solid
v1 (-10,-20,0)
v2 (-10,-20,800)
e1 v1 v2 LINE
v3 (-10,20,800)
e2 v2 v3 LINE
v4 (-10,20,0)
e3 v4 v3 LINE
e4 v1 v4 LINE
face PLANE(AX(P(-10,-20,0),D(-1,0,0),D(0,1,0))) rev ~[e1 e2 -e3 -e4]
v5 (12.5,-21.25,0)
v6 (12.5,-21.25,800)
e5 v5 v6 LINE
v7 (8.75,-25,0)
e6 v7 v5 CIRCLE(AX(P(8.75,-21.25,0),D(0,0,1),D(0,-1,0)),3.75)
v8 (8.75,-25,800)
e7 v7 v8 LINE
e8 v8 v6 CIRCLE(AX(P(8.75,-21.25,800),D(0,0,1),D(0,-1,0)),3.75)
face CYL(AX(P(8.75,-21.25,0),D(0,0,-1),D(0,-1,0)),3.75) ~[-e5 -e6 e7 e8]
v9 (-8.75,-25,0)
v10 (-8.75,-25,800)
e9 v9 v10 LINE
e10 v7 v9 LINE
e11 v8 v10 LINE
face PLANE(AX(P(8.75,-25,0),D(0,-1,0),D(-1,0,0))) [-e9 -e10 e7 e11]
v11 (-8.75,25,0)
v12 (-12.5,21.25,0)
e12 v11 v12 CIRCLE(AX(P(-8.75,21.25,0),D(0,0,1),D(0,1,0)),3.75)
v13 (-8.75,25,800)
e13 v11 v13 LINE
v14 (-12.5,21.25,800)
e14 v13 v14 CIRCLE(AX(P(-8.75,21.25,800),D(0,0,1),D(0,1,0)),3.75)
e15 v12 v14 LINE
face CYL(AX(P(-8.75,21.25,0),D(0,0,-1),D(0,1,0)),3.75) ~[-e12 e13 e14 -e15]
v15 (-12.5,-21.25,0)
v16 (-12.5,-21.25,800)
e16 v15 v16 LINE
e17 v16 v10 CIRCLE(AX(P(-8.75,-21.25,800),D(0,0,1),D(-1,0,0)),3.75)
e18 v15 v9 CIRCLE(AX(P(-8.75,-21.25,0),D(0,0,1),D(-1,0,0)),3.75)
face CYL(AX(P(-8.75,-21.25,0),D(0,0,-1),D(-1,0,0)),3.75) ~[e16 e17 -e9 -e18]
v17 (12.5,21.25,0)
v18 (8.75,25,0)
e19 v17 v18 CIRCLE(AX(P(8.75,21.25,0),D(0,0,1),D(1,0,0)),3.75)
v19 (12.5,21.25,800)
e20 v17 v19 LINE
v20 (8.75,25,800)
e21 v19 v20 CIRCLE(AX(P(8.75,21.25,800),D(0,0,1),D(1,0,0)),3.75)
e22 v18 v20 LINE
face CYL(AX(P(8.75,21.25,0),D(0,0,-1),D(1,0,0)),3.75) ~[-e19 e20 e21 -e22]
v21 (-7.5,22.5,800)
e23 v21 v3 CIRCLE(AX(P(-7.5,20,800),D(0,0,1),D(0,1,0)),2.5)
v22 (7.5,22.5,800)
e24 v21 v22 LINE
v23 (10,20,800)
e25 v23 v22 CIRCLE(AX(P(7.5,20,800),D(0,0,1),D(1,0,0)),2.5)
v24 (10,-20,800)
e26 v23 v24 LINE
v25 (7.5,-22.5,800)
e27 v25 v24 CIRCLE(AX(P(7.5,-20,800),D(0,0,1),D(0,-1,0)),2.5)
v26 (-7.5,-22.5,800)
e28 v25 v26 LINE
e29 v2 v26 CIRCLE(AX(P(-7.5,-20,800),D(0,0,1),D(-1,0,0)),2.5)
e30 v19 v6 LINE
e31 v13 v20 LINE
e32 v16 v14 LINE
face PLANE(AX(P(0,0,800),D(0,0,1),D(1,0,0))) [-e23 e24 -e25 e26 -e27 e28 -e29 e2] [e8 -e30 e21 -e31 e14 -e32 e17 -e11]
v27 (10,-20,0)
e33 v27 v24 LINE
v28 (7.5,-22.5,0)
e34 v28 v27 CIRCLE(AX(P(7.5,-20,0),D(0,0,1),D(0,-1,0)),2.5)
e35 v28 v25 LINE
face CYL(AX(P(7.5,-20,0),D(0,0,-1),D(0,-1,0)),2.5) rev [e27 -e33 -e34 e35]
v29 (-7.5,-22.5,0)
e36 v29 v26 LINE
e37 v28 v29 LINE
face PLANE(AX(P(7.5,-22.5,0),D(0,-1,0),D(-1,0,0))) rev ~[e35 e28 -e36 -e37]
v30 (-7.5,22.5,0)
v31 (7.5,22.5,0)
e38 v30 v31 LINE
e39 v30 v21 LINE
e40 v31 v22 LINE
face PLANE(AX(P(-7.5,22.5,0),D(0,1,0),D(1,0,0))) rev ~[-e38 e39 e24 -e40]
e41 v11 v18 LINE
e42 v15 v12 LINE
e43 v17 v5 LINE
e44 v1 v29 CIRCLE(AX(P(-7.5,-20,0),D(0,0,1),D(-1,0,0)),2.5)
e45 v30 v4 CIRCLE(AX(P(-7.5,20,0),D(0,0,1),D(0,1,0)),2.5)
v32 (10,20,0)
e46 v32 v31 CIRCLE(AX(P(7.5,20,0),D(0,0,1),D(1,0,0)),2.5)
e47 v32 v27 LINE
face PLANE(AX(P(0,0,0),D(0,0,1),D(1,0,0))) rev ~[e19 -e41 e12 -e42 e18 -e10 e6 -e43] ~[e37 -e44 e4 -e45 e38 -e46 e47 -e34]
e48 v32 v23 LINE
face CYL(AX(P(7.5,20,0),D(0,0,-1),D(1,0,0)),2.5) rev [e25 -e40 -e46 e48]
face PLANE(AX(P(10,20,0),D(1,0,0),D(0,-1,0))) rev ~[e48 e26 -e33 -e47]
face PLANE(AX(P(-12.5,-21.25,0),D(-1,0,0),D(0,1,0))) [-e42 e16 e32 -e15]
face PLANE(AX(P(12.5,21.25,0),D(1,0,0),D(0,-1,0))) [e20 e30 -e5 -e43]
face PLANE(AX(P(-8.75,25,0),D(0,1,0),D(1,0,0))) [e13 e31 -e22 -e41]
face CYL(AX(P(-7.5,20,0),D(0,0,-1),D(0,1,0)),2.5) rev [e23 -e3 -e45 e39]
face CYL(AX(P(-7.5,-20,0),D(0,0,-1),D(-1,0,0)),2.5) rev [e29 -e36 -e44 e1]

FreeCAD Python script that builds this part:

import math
import FreeCAD as App
import Part
import Sketcher

V = App.Vector

doc = App.newDocument("Part")
params = doc.addObject("Spreadsheet::Sheet", "Params")
for row, (alias, value) in enumerate([
    ("sketch1_radius", "2.5 mm"),
    ("sketch1_radius2", "3.75 mm"),
    ("pad1_length", "800 mm"),
], start=1):
    params.set(f"A{row}", alias)
    params.set(f"B{row}", "=" + value)
    params.setAlias(f"B{row}", alias)

body = doc.addObject("PartDesign::Body", "Body")

sketch1 = body.newObject("Sketcher::SketchObject", "Sketch")
sketch1.AttachmentSupport = (doc.getObject("XY_Plane"), [""])
sketch1.MapMode = "FlatFace"
sketch1.addGeometry(Part.LineSegment(V(-12.5, 21.2, 0), V(-12.5, -21.2, 0)), False)
sketch1.addGeometry(Part.ArcOfCircle(Part.Circle(V(-8.8, -21.2, 0), V(0, 0, 1), 3.8), math.radians(180), math.radians(270)), False)
sketch1.addGeometry(Part.LineSegment(V(-8.8, -25, 0), V(8.8, -25, 0)), False)
sketch1.addGeometry(Part.ArcOfCircle(Part.Circle(V(8.8, -21.2, 0), V(0, 0, 1), 3.8), math.radians(-90), math.radians(0)), False)
sketch1.addGeometry(Part.LineSegment(V(12.5, -21.2, 0), V(12.5, 21.2, 0)), False)
sketch1.addGeometry(Part.ArcOfCircle(Part.Circle(V(8.8, 21.2, 0), V(0, 0, 1), 3.8), math.radians(0), math.radians(90)), False)
sketch1.addGeometry(Part.LineSegment(V(8.8, 25, 0), V(-8.8, 25, 0)), False)
sketch1.addGeometry(Part.ArcOfCircle(Part.Circle(V(-8.8, 21.2, 0), V(0, 0, 1), 3.8), math.radians(90), math.radians(180)), False)
sketch1.addGeometry(Part.ArcOfCircle(Part.Circle(V(-7.5, 20, 0), V(0, 0, 1), 2.5), math.radians(90), math.radians(180)), False)
sketch1.addGeometry(Part.LineSegment(V(-7.5, 22.5, 0), V(7.5, 22.5, 0)), False)
sketch1.addGeometry(Part.ArcOfCircle(Part.Circle(V(7.5, 20, 0), V(0, 0, 1), 2.5), math.radians(0), math.radians(90)), False)
sketch1.addGeometry(Part.LineSegment(V(10, 20, 0), V(10, -20, 0)), False)
sketch1.addGeometry(Part.ArcOfCircle(Part.Circle(V(7.5, -20, 0), V(0, 0, 1), 2.5), math.radians(-90), math.radians(0)), False)
sketch1.addGeometry(Part.LineSegment(V(7.5, -22.5, 0), V(-7.5, -22.5, 0)), False)
sketch1.addGeometry(Part.ArcOfCircle(Part.Circle(V(-7.5, -20, 0), V(0, 0, 1), 2.5), math.radians(180), math.radians(270)), False)
sketch1.addGeometry(Part.LineSegment(V(-10, -20, 0), V(-10, 20, 0)), False)
sketch1.addConstraint(Sketcher.Constraint("Tangent", 0, 2, 1, 1))
sketch1.addConstraint(Sketcher.Constraint("Tangent", 1, 2, 2, 1))
sketch1.addConstraint(Sketcher.Constraint("Tangent", 2, 2, 3, 1))
sketch1.addConstraint(Sketcher.Constraint("Tangent", 3, 2, 4, 1))
sketch1.addConstraint(Sketcher.Constraint("Tangent", 4, 2, 5, 1))
sketch1.addConstraint(Sketcher.Constraint("Tangent", 5, 2, 6, 1))
sketch1.addConstraint(Sketcher.Constraint("Tangent", 6, 2, 7, 1))
sketch1.addConstraint(Sketcher.Constraint("Tangent", 7, 2, 0, 1))
sketch1.addConstraint(Sketcher.Constraint("Tangent", 8, 1, 9, 1))
sketch1.addConstraint(Sketcher.Constraint("Tangent", 9, 2, 10, 2))
sketch1.addConstraint(Sketcher.Constraint("Tangent", 10, 1, 11, 1))
sketch1.addConstraint(Sketcher.Constraint("Tangent", 11, 2, 12, 2))
sketch1.addConstraint(Sketcher.Constraint("Tangent", 12, 1, 13, 1))
sketch1.addConstraint(Sketcher.Constraint("Tangent", 13, 2, 14, 2))
sketch1.addConstraint(Sketcher.Constraint("Tangent", 14, 1, 15, 1))
sketch1.addConstraint(Sketcher.Constraint("Tangent", 15, 2, 8, 2))
sketch1.addConstraint(Sketcher.Constraint("Vertical", 0))
sketch1.addConstraint(Sketcher.Constraint("Horizontal", 2))
sketch1.addConstraint(Sketcher.Constraint("Vertical", 4))
sketch1.addConstraint(Sketcher.Constraint("Horizontal", 6))
sketch1.addConstraint(Sketcher.Constraint("Horizontal", 9))
sketch1.addConstraint(Sketcher.Constraint("Vertical", 11))
sketch1.addConstraint(Sketcher.Constraint("Horizontal", 13))
sketch1.addConstraint(Sketcher.Constraint("Vertical", 15))
sketch1.addConstraint(Sketcher.Constraint("Equal", 1, 3))
sketch1.addConstraint(Sketcher.Constraint("Equal", 3, 5))
sketch1.addConstraint(Sketcher.Constraint("Equal", 5, 7))
sketch1.addConstraint(Sketcher.Constraint("Equal", 8, 10))
sketch1.addConstraint(Sketcher.Constraint("Equal", 10, 12))
sketch1.addConstraint(Sketcher.Constraint("Equal", 12, 14))
sketch1.addConstraint(Sketcher.Constraint("Symmetric", 1, 3, 5, 3, -1, 1))
sketch1.addConstraint(Sketcher.Constraint("Symmetric", 8, 3, 12, 3, -1, 1))
sketch1.addConstraint(Sketcher.Constraint("Radius", 8, 2.5))
sketch1.addConstraint(Sketcher.Constraint("Radius", 1, 3.75))
sketch1.addConstraint(Sketcher.Constraint("DistanceY", 1, 2, -1, 1, 25.0))
sketch1.addConstraint(Sketcher.Constraint("DistanceX", 0, 2, -1, 1, 12.5))
sketch1.addConstraint(Sketcher.Constraint("DistanceY", 8, 1, 6, 2, 2.5))
sketch1.addConstraint(Sketcher.Constraint("DistanceX", 10, 1, 4, 2, 2.5))
sketch1.setExpression("Constraints[32]", "Params.sketch1_radius")
sketch1.setExpression("Constraints[33]", "Params.sketch1_radius2")
pad1 = body.newObject("PartDesign::Pad", "Pad")
pad1.Profile = sketch1
pad1.setExpression("Length", "Params.pad1_length")

doc.recompute()
